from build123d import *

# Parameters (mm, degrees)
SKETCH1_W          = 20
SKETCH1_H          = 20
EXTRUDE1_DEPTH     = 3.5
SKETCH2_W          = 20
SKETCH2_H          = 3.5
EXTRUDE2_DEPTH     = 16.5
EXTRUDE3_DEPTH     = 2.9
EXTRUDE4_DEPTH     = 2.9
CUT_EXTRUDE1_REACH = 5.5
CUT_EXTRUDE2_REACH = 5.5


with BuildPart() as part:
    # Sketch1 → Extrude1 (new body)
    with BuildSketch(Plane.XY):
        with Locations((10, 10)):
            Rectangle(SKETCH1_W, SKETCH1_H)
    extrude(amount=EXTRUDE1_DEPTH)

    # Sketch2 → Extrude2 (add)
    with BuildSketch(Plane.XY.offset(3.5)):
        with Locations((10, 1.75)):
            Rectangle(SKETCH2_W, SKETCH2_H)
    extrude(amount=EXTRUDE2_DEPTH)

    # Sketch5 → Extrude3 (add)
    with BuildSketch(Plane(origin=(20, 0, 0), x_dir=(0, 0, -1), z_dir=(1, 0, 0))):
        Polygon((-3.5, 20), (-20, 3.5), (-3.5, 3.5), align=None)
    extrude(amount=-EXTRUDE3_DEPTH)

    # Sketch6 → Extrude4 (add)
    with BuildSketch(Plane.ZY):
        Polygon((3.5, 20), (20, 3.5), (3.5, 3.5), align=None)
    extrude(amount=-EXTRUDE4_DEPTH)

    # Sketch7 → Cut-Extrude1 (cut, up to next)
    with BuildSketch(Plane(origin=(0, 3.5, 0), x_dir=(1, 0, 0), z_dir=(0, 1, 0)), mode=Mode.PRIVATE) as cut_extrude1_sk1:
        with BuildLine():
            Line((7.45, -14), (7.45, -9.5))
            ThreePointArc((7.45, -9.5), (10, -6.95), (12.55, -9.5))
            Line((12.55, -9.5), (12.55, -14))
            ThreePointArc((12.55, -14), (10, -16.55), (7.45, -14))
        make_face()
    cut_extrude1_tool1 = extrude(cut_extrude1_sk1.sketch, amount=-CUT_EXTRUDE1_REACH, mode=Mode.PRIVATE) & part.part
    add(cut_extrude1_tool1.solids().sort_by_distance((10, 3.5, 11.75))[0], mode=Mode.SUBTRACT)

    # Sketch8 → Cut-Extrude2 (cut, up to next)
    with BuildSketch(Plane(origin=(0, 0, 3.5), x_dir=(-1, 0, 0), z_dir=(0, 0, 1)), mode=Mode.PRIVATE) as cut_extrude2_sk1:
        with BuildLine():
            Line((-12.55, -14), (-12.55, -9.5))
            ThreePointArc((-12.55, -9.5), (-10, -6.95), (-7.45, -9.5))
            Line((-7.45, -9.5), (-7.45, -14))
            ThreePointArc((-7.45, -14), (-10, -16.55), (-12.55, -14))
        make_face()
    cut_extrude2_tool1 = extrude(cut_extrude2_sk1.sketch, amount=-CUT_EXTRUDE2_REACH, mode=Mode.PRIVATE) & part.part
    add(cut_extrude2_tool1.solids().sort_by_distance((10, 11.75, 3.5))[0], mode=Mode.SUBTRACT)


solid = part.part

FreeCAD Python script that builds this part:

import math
import FreeCAD as App
import Part
import Sketcher
from FreeCAD import Vector


def add_polygon(sketch, points):
    """Adds a closed chain of lines whose ends are joined by coincident constraints."""
    first, n = sketch.GeometryCount, len(points)
    for a, b in zip(points, points[1:] + points[:1]):
        sketch.addGeometry(Part.LineSegment(App.Vector(*a, 0), App.Vector(*b, 0)), False)
    for i in range(n):
        sketch.addConstraint(Sketcher.Constraint("Coincident", first + i, 2, first + (i + 1) % n, 1))

doc = App.newDocument("Part")
body = doc.addObject("PartDesign::Body", "Body")

# Sketch on XY plane
sketch1 = body.newObject("Sketcher::SketchObject", "Sketch")
sketch1.AttachmentSupport = (doc.getObject("XY_Plane"), [""])
sketch1.MapMode = "FlatFace"
add_polygon(sketch1, [(0, 20), (0, 0), (20, 0), (20, 20)])  # lines 0-3
sketch1.addConstraint([
    Sketcher.Constraint("Vertical", 0),
    Sketcher.Constraint("Horizontal", 1),
    Sketcher.Constraint("Vertical", 2),
    Sketcher.Constraint("Horizontal", 3),
    Sketcher.Constraint("Coincident", 0, 2, -1, 1),
    Sketcher.Constraint("Equal", 3, 0),
    Sketcher.Constraint("DistanceX", 1, 1, 1, 2, 20.0),
])
pad1 = body.newObject("PartDesign::Pad", "Pad")
pad1.Profile = sketch1
pad1.Length = 3.5

# Sketch on XY plane
sketch2 = body.newObject("Sketcher::SketchObject", "Sketch001")
sketch2.AttachmentSupport = (doc.getObject("XY_Plane"), [""])
sketch2.MapMode = "FlatFace"
sketch2.AttachmentOffset = App.Placement(Vector(0, 0, 3.5), App.Rotation())
add_polygon(sketch2, [(0, 3.5), (0, 0), (20, 0), (20, 3.5)])  # lines 0-3
sketch2.addConstraint([
    Sketcher.Constraint("Vertical", 0),
    Sketcher.Constraint("Horizontal", 1),
    Sketcher.Constraint("Vertical", 2),
    Sketcher.Constraint("Horizontal", 3),
    Sketcher.Constraint("Coincident", 0, 2, -1, 1),
    Sketcher.Constraint("DistanceX", 1, 1, 1, 2, 20.0),
    Sketcher.Constraint("DistanceY", 0, 2, 0, 1, 3.5),
])
pad2 = body.newObject("PartDesign::Pad", "Pad001")
pad2.Profile = sketch2
pad2.Length = 16.5

# Sketch on YZ plane
sketch3 = body.newObject("Sketcher::SketchObject", "Sketch002")
sketch3.AttachmentSupport = (doc.getObject("YZ_Plane"), [""])
sketch3.MapMode = "FlatFace"
sketch3.AttachmentOffset = App.Placement(Vector(0, 0, 20), App.Rotation())
add_polygon(sketch3, [(20, 4), (4, 20), (4, 4)])  # lines 0-2
sketch3.addConstraint([
    Sketcher.Constraint("Vertical", 1),
    Sketcher.Constraint("Horizontal", 2),
    Sketcher.Constraint("Equal", 2, 1),
    Sketcher.Constraint("DistanceX", 2, 1, 2, 2, 16.5),
    Sketcher.Constraint("DistanceY", -1, 1, 0, 2, 20.0),
    Sketcher.Constraint("DistanceX", -1, 1, 2, 2, 20.0),
])
pad3 = body.newObject("PartDesign::Pad", "Pad002")
pad3.Profile = sketch3
pad3.Length = 2.9
pad3.Reversed = True

# Sketch on YZ plane
sketch4 = body.newObject("Sketcher::SketchObject", "Sketch003")
sketch4.AttachmentSupport = (doc.getObject("YZ_Plane"), [""])
sketch4.MapMode = "FlatFace"
add_polygon(sketch4, [(4, 20), (20, 4), (4, 4)])  # lines 0-2
sketch4.addConstraint([
    Sketcher.Constraint("Horizontal", 1),
    Sketcher.Constraint("Vertical", 2),
    Sketcher.Constraint("Equal", 1, 2),
    Sketcher.Constraint("DistanceX", 1, 2, 1, 1, 16.5),
    Sketcher.Constraint("DistanceX", -1, 1, 0, 2, 20.0),
    Sketcher.Constraint("DistanceY", -1, 1, 2, 2, 20.0),
])
pad4 = body.newObject("PartDesign::Pad", "Pad003")
pad4.Profile = sketch4
pad4.Length = 2.9

# Sketch on XZ plane
sketch5 = body.newObject("Sketcher::SketchObject", "Sketch004")
sketch5.AttachmentSupport = (doc.getObject("XZ_Plane"), [""])
sketch5.MapMode = "FlatFace"
sketch5.AttachmentOffset = App.Placement(Vector(0, 0, -3.5), App.Rotation())
sketch5.addGeometry([
    Part.LineSegment(Vector(7.5, 9.5, 0), Vector(7.5, 14, 0)),
    Part.ArcOfCircle(Part.Circle(Vector(10, 14, 0), Vector(0, 0, 1), 2.5), math.radians(0), math.radians(180)),
    Part.LineSegment(Vector(12.6, 14, 0), Vector(12.6, 9.5, 0)),
    Part.ArcOfCircle(Part.Circle(Vector(10, 9.5, 0), Vector(0, 0, 1), 2.5), math.radians(180), math.radians(360)),
], False)
sketch5.addConstraint([
    Sketcher.Constraint("Tangent", 0, 2, 1, 2),
    Sketcher.Constraint("Tangent", 1, 1, 2, 1),
    Sketcher.Constraint("Tangent", 2, 2, 3, 2),
    Sketcher.Constraint("Tangent", 3, 1, 0, 1),
    Sketcher.Constraint("Vertical", 0),
    Sketcher.Constraint("Vertical", 2),
    Sketcher.Constraint("Radius", 1, 2.55),
    Sketcher.Constraint("DistanceY", 0, 1, 0, 2, 4.5),
    Sketcher.Constraint("DistanceX", -1, 1, 1, 3, 10.0),
    Sketcher.Constraint("DistanceY", -1, 1, 1, 3, 14.0),
])
pocket1 = body.newObject("PartDesign::Pocket", "Pocket")
pocket1.Profile = sketch5
pocket1.Type = "UpToFirst"
pocket1.Reversed = True

# Sketch on XY plane
sketch6 = body.newObject("Sketcher::SketchObject", "Sketch005")
sketch6.AttachmentSupport = (doc.getObject("XY_Plane"), [""])
sketch6.MapMode = "FlatFace"
sketch6.AttachmentOffset = App.Placement(Vector(0, 0, 3.5), App.Rotation())
sketch6.addGeometry([
    Part.LineSegment(Vector(12.6, 9.5, 0), Vector(12.6, 14, 0)),
    Part.ArcOfCircle(Part.Circle(Vector(10, 14, 0), Vector(0, 0, 1), 2.5), math.radians(0), math.radians(180)),
    Part.LineSegment(Vector(7.5, 14, 0), Vector(7.5, 9.5, 0)),
    Part.ArcOfCircle(Part.Circle(Vector(10, 9.5, 0), Vector(0, 0, 1), 2.5), math.radians(180), math.radians(360)),
], False)
sketch6.addConstraint([
    Sketcher.Constraint("Tangent", 0, 2, 1, 1),
    Sketcher.Constraint("Tangent", 1, 2, 2, 1),
    Sketcher.Constraint("Tangent", 2, 2, 3, 1),
    Sketcher.Constraint("Tangent", 3, 2, 0, 1),
    Sketcher.Constraint("Vertical", 0),
    Sketcher.Constraint("Vertical", 2),
    Sketcher.Constraint("Radius", 1, 2.55),
    Sketcher.Constraint("DistanceY", 0, 1, 0, 2, 4.5),
    Sketcher.Constraint("DistanceX", -1, 1, 1, 3, 10.0),
    Sketcher.Constraint("DistanceY", -1, 1, 1, 3, 14.0),
])
pocket2 = body.newObject("PartDesign::Pocket", "Pocket001")
pocket2.Profile = sketch6
pocket2.Type = "UpToFirst"

doc.recompute()
